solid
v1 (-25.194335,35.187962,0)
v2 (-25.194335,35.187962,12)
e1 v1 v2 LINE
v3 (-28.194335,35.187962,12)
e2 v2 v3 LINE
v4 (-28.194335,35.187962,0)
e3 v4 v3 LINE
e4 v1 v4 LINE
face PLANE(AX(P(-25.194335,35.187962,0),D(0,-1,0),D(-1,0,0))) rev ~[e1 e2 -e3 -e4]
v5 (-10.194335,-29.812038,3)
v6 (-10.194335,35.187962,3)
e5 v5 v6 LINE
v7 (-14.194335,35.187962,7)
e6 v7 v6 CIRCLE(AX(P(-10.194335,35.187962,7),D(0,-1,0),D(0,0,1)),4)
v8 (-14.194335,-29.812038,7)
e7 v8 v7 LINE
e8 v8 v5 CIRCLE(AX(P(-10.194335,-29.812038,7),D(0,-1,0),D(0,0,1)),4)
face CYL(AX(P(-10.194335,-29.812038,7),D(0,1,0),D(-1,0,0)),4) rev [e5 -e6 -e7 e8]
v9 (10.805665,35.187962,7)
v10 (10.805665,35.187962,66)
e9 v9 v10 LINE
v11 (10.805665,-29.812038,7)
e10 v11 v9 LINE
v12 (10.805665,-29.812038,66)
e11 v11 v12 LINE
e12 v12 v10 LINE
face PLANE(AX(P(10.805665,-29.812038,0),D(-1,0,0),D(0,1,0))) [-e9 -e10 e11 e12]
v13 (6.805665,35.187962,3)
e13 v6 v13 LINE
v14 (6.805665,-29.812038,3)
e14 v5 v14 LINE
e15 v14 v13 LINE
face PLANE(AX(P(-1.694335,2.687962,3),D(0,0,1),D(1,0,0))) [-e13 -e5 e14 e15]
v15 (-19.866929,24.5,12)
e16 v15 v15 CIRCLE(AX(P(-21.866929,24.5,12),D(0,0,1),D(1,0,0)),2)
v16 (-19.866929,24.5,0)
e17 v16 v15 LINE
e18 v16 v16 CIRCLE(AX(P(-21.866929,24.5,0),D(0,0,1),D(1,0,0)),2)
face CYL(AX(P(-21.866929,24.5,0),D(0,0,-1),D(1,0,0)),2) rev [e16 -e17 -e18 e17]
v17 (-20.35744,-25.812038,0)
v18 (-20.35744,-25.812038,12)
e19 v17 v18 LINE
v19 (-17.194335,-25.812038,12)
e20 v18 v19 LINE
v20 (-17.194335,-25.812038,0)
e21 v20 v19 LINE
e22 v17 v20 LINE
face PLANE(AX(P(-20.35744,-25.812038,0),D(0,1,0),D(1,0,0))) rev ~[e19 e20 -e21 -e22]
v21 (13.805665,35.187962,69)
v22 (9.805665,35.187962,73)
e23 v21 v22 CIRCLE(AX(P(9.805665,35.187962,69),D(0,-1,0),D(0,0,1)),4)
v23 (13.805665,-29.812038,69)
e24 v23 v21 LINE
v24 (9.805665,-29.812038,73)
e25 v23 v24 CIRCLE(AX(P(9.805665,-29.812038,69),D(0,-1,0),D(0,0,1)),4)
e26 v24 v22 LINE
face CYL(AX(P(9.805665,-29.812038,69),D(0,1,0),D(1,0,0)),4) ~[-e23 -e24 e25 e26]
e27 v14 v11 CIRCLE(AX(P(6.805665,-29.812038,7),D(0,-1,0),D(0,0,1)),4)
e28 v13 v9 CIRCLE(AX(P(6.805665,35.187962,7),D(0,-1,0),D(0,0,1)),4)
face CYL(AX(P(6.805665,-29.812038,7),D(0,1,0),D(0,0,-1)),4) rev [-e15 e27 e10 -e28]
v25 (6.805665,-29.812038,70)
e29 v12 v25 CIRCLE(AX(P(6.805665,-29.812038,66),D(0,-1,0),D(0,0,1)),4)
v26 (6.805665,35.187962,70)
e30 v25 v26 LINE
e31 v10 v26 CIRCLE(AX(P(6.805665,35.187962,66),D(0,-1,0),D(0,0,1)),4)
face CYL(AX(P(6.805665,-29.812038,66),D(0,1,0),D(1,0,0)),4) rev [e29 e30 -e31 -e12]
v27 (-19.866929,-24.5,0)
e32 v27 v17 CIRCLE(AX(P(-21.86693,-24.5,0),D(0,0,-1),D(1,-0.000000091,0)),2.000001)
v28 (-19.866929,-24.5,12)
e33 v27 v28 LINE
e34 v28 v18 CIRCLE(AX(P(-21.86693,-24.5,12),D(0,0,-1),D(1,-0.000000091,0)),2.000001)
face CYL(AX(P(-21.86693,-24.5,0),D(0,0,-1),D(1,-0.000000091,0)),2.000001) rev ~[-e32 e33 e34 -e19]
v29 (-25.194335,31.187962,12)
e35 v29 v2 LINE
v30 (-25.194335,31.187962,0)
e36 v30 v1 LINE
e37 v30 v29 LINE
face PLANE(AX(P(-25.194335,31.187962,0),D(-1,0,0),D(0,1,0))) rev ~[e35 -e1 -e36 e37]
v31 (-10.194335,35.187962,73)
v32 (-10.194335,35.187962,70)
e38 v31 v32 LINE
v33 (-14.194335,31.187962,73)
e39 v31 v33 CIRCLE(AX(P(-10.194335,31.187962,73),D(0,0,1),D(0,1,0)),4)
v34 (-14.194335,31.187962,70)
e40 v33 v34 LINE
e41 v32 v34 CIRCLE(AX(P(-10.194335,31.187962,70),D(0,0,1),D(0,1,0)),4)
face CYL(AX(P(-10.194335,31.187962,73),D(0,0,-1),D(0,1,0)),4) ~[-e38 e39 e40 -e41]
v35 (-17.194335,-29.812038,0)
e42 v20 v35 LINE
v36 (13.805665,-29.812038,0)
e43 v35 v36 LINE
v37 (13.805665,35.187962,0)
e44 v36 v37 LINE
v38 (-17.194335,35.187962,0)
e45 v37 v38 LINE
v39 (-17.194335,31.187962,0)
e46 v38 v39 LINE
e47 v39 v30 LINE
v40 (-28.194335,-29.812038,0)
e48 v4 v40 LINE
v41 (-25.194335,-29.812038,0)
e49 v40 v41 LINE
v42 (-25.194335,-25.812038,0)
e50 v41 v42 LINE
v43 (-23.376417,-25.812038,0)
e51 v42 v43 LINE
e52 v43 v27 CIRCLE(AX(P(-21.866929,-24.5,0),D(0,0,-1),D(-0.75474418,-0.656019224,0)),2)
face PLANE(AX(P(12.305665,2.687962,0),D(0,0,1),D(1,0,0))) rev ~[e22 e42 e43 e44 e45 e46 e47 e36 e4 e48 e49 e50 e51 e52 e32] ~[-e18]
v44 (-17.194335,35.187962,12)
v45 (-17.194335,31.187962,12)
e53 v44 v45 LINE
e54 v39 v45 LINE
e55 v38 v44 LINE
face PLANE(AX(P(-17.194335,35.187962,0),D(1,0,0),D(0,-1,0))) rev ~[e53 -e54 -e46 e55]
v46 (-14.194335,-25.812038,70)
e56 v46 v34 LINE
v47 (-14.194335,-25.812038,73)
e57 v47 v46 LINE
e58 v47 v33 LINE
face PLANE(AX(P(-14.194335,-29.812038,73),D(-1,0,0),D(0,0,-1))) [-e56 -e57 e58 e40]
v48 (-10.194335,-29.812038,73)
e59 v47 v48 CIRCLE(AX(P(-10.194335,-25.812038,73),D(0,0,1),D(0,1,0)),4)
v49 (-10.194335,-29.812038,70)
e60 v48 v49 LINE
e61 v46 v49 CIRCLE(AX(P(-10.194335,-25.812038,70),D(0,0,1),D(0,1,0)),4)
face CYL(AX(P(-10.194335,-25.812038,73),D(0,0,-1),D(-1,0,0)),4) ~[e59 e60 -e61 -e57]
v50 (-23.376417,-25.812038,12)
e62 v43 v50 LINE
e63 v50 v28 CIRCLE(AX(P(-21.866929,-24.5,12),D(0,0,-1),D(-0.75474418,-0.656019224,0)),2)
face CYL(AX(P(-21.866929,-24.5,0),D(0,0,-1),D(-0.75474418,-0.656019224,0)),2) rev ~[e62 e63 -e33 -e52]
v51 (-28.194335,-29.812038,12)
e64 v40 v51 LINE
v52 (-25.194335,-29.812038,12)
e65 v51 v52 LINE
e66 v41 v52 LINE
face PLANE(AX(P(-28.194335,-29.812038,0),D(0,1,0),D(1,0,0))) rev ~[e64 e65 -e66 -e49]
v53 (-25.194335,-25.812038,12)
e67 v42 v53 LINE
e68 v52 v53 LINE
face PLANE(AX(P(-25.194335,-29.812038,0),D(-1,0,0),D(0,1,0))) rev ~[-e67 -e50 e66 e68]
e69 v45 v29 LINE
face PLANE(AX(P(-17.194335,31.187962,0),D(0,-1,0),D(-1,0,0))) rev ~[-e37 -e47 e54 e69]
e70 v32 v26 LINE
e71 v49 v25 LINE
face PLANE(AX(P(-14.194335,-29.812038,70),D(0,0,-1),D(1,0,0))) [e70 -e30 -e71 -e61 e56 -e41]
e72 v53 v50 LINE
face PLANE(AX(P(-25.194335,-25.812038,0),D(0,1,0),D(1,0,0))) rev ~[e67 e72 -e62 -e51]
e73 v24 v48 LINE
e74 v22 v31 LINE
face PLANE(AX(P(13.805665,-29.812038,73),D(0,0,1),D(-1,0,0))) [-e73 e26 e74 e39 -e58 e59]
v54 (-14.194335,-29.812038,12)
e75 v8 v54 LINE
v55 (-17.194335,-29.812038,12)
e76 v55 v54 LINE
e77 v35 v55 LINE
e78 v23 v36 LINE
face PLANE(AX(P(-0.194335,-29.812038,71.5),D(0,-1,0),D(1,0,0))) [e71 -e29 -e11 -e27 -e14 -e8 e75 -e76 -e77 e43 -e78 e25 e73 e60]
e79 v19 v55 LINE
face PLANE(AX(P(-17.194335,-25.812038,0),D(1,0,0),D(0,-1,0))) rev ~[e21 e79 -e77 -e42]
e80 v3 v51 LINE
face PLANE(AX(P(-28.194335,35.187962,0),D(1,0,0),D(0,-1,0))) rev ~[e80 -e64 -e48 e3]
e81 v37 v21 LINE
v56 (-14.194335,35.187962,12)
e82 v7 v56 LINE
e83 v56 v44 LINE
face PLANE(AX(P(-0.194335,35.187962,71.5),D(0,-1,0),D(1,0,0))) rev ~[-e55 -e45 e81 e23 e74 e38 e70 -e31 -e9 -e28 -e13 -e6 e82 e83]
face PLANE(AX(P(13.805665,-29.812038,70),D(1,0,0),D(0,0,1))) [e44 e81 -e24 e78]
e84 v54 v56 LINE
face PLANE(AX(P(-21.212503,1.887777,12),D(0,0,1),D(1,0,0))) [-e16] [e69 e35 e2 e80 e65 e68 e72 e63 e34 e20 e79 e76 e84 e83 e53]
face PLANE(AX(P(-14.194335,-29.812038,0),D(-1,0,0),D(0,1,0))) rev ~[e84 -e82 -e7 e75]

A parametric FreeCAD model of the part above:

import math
import FreeCAD as App
import Part
import Sketcher


def edges_at(feature, points):
    """Names of the edges that pass closest to the given points."""
    edges = feature.Shape.Edges
    near = lambda p: min(range(len(edges)), key=lambda i: edges[i].distToShape(Part.Vertex(*p))[0])
    return sorted({f"Edge{near(p) + 1}" for p in points})


def add_polygon(sketch, points):
    """Adds a closed chain of lines whose ends are joined by coincident constraints."""
    first, n = sketch.GeometryCount, len(points)
    for a, b in zip(points, points[1:] + points[:1]):
        sketch.addGeometry(Part.LineSegment(App.Vector(*a, 0), App.Vector(*b, 0)), False)
    for i in range(n):
        sketch.addConstraint(Sketcher.Constraint("Coincident", first + i, 2, first + (i + 1) % n, 1))

doc = App.newDocument("Part")
body = doc.addObject("PartDesign::Body", "Body")

# Sketch on XY plane
sketch1 = doc.addObject("Sketcher::SketchObject", "Sketch")
body.addObject(sketch1)
sketch1.AttachmentSupport = (doc.XY_Plane, [""])
sketch1.MapMode = "FlatFace"
sketch1.addGeometry(Part.LineSegment(App.Vector(-25.2, 35.2, 0), App.Vector(-28.2, 35.2, 0)), False)
sketch1.addGeometry(Part.LineSegment(App.Vector(-28.2, 35.2, 0), App.Vector(-28.2, -29.8, 0)), False)
sketch1.addGeometry(Part.LineSegment(App.Vector(-28.2, -29.8, 0), App.Vector(-25.2, -29.8, 0)), False)
sketch1.addGeometry(Part.LineSegment(App.Vector(-25.2, -29.8, 0), App.Vector(-25.2, -25.8, 0)), False)
sketch1.addGeometry(Part.LineSegment(App.Vector(-25.2, -25.8, 0), App.Vector(-23.4, -25.8, 0)), False)
sketch1.addGeometry(Part.ArcOfCircle(Part.Circle(App.Vector(-21.9, -24.5, 0), App.Vector(0, 0, 1), 2), math.radians(0), math.radians(221)), False)
sketch1.addGeometry(Part.ArcOfCircle(Part.Circle(App.Vector(-21.9, -24.5, 0), App.Vector(0, 0, 1), 2), math.radians(-41), math.radians(0)), False)
sketch1.addGeometry(Part.LineSegment(App.Vector(-20.4, -25.8, 0), App.Vector(-17.2, -25.8, 0)), False)
sketch1.addGeometry(Part.LineSegment(App.Vector(-17.2, -25.8, 0), App.Vector(-17.2, -29.8, 0)), False)
sketch1.addGeometry(Part.LineSegment(App.Vector(-17.2, -29.8, 0), App.Vector(-14.2, -29.8, 0)), False)
sketch1.addGeometry(Part.LineSegment(App.Vector(-14.2, -29.8, 0), App.Vector(-14.2, 35.2, 0)), False)
sketch1.addGeometry(Part.LineSegment(App.Vector(-14.2, 35.2, 0), App.Vector(-17.2, 35.2, 0)), False)
sketch1.addGeometry(Part.LineSegment(App.Vector(-17.2, 35.2, 0), App.Vector(-17.2, 31.2, 0)), False)
sketch1.addGeometry(Part.LineSegment(App.Vector(-17.2, 31.2, 0), App.Vector(-25.2, 31.2, 0)), False)
sketch1.addGeometry(Part.LineSegment(App.Vector(-25.2, 31.2, 0), App.Vector(-25.2, 35.2, 0)), False)
sketch1.addGeometry(Part.Circle(App.Vector(-21.9, 24.5, 0), App.Vector(0, 0, 1), 2), False)
sketch1.addConstraint(Sketcher.Constraint("Coincident", 0, 2, 1, 1))
sketch1.addConstraint(Sketcher.Constraint("Coincident", 1, 2, 2, 1))
sketch1.addConstraint(Sketcher.Constraint("Coincident", 2, 2, 3, 1))
sketch1.addConstraint(Sketcher.Constraint("Coincident", 3, 2, 4, 1))
sketch1.addConstraint(Sketcher.Constraint("Coincident", 4, 2, 5, 2))
sketch1.addConstraint(Sketcher.Constraint("Tangent", 5, 1, 6, 2))
sketch1.addConstraint(Sketcher.Constraint("Coincident", 6, 1, 7, 1))
sketch1.addConstraint(Sketcher.Constraint("Coincident", 7, 2, 8, 1))
sketch1.addConstraint(Sketcher.Constraint("Coincident", 8, 2, 9, 1))
sketch1.addConstraint(Sketcher.Constraint("Coincident", 9, 2, 10, 1))
sketch1.addConstraint(Sketcher.Constraint("Coincident", 10, 2, 11, 1))
sketch1.addConstraint(Sketcher.Constraint("Coincident", 11, 2, 12, 1))
sketch1.addConstraint(Sketcher.Constraint("Coincident", 12, 2, 13, 1))
sketch1.addConstraint(Sketcher.Constraint("Coincident", 13, 2, 14, 1))
sketch1.addConstraint(Sketcher.Constraint("Coincident", 14, 2, 0, 1))
sketch1.addConstraint(Sketcher.Constraint("Horizontal", 0))
sketch1.addConstraint(Sketcher.Constraint("Vertical", 1))
sketch1.addConstraint(Sketcher.Constraint("Horizontal", 2))
sketch1.addConstraint(Sketcher.Constraint("Vertical", 3))
sketch1.addConstraint(Sketcher.Constraint("Horizontal", 4))
sketch1.addConstraint(Sketcher.Constraint("Horizontal", 7))
sketch1.addConstraint(Sketcher.Constraint("Vertical", 8))
sketch1.addConstraint(Sketcher.Constraint("Horizontal", 9))
sketch1.addConstraint(Sketcher.Constraint("Vertical", 10))
sketch1.addConstraint(Sketcher.Constraint("Horizontal", 11))
sketch1.addConstraint(Sketcher.Constraint("Vertical", 12))
sketch1.addConstraint(Sketcher.Constraint("Horizontal", 13))
sketch1.addConstraint(Sketcher.Constraint("Vertical", 14))
sketch1.addConstraint(Sketcher.Constraint("Equal", 5, 6))
sketch1.addConstraint(Sketcher.Constraint("Equal", 6, 15))
sketch1.addConstraint(Sketcher.Constraint("Symmetric", 5, 3, 15, 3, -1))
sketch1.addConstraint(Sketcher.Constraint("Horizontal", 6, 3, 5, 1))
sketch1.addConstraint(Sketcher.Constraint("Horizontal", 4, 2, 6, 1))
sketch1.addConstraint(Sketcher.Constraint("Horizontal", 2, 2, 8, 2))
sketch1.addConstraint(Sketcher.Constraint("Horizontal", 0, 2, 10, 2))
sketch1.addConstraint(Sketcher.Constraint("Vertical", 8, 2, 11, 2))
sketch1.addConstraint(Sketcher.Constraint("Vertical", 3, 2, 13, 2))
sketch1.addConstraint(Sketcher.Constraint("Equal", 2, 9))
sketch1.addConstraint(Sketcher.Constraint("Equal", 8, 12))
sketch1.addConstraint(Sketcher.Constraint("Diameter", 15, 4.0))
sketch1.addConstraint(Sketcher.Constraint("DistanceX", 0, 2, 0, 1, 3.0))
sketch1.addConstraint(Sketcher.Constraint("DistanceX", 13, 2, 13, 1, 8.0))
sketch1.addConstraint(Sketcher.Constraint("DistanceY", 1, 2, 1, 1, 65.0))
sketch1.addConstraint(Sketcher.Constraint("DistanceY", 3, 1, 3, 2, 4.0))
sketch1.addConstraint(Sketcher.Constraint("DistanceY", 5, 3, 15, 3, 49.0))
sketch1.addConstraint(Sketcher.Constraint("DistanceX", 4, 1, 4, 2, 1.817918))
sketch1.addConstraint(Sketcher.Constraint("DistanceX", 7, 1, 7, 2, 3.163105))
sketch1.addConstraint(Sketcher.Constraint("DistanceX", 5, 3, -1, 1, 21.866929))
pad1 = doc.addObject("PartDesign::Pad", "Pad")
body.addObject(pad1)
pad1.Profile = sketch1
pad1.Length = 12

# Sketch on XY plane
sketch2 = doc.addObject("Sketcher::SketchObject", "Sketch001")
body.addObject(sketch2)
sketch2.AttachmentSupport = (doc.XY_Plane, [""])
sketch2.MapMode = "FlatFace"
add_polygon(sketch2, [(-14, 35), (-14, -30), (11, -30), (11, 35)])  # lines 0-3
sketch2.addConstraint(Sketcher.Constraint("Vertical", 0))
sketch2.addConstraint(Sketcher.Constraint("Horizontal", 1))
sketch2.addConstraint(Sketcher.Constraint("Vertical", 2))
sketch2.addConstraint(Sketcher.Constraint("Horizontal", 3))
sketch2.addConstraint(Sketcher.Constraint("DistanceX", 1, 1, 1, 2, 25.0))
sketch2.addConstraint(Sketcher.Constraint("DistanceY", 0, 2, 0, 1, 65.0))
sketch2.addConstraint(Sketcher.Constraint("DistanceY", 0, 2, -1, 1, 29.812038))
sketch2.addConstraint(Sketcher.Constraint("DistanceX", 0, 2, -1, 1, 14.194335))
pad2 = doc.addObject("PartDesign::Pad", "Pad001")
body.addObject(pad2)
pad2.Profile = sketch2
pad2.Length = 3

# Sketch on XY plane
sketch3 = doc.addObject("Sketcher::SketchObject", "Sketch002")
body.addObject(sketch3)
sketch3.AttachmentSupport = (doc.XY_Plane, [""])
sketch3.MapMode = "FlatFace"
add_polygon(sketch3, [(10.8, 35.2), (10.8, -29.8), (13.8, -29.8), (13.8, 35.2)])  # lines 0-3
sketch3.addConstraint(Sketcher.Constraint("Vertical", 0))
sketch3.addConstraint(Sketcher.Constraint("Horizontal", 1))
sketch3.addConstraint(Sketcher.Constraint("Vertical", 2))
sketch3.addConstraint(Sketcher.Constraint("Horizontal", 3))
sketch3.addConstraint(Sketcher.Constraint("DistanceX", 1, 1, 1, 2, 3.0))
sketch3.addConstraint(Sketcher.Constraint("DistanceY", 0, 2, 0, 1, 65.0))
sketch3.addConstraint(Sketcher.Constraint("DistanceY", 0, 2, -1, 1, 29.812038))
sketch3.addConstraint(Sketcher.Constraint("DistanceX", -1, 1, 0, 2, 10.805665))
pad3 = doc.addObject("PartDesign::Pad", "Pad002")
body.addObject(pad3)
pad3.Profile = sketch3
pad3.Length = 70

# Sketch on XZ plane
sketch4 = doc.addObject("Sketcher::SketchObject", "Sketch003")
body.addObject(sketch4)
sketch4.AttachmentSupport = (doc.XZ_Plane, [""])
sketch4.MapMode = "FlatFace"
sketch4.AttachmentOffset = App.Placement(App.Vector(0, 0, 29.812038), App.Rotation())
add_polygon(sketch4, [(13.8, 70), (13.8, 73), (-14.2, 73), (-14.2, 70)])  # lines 0-3
sketch4.addConstraint(Sketcher.Constraint("Vertical", 0))
sketch4.addConstraint(Sketcher.Constraint("Horizontal", 1))
sketch4.addConstraint(Sketcher.Constraint("Vertical", 2))
sketch4.addConstraint(Sketcher.Constraint("Horizontal", 3))
sketch4.addConstraint(Sketcher.Constraint("DistanceX", 1, 2, 1, 1, 28.0))
sketch4.addConstraint(Sketcher.Constraint("DistanceY", 0, 1, 0, 2, 3.0))
sketch4.addConstraint(Sketcher.Constraint("DistanceY", -1, 1, 0, 2, 73.0))
sketch4.addConstraint(Sketcher.Constraint("DistanceX", -1, 1, 0, 2, 13.805665))
pad4 = doc.addObject("PartDesign::Pad", "Pad003")
body.addObject(pad4)
pad4.Profile = sketch4
pad4.Length = 65
pad4.Reversed = True
doc.recompute()

fillet = doc.addObject("PartDesign::Fillet", "Fillet")
body.addObject(fillet)
fillet.Base = (pad4, edges_at(pad4, [
    (10.806, 2.688, 3),
    (10.806, 2.688, 70),
    (-14.194, 2.688, 3),
    (13.806, 2.688, 73),
    (-14.194, -29.812, 71.5),
    (-14.194, 35.188, 71.5),
]))
fillet.Radius = 4

doc.recompute()
